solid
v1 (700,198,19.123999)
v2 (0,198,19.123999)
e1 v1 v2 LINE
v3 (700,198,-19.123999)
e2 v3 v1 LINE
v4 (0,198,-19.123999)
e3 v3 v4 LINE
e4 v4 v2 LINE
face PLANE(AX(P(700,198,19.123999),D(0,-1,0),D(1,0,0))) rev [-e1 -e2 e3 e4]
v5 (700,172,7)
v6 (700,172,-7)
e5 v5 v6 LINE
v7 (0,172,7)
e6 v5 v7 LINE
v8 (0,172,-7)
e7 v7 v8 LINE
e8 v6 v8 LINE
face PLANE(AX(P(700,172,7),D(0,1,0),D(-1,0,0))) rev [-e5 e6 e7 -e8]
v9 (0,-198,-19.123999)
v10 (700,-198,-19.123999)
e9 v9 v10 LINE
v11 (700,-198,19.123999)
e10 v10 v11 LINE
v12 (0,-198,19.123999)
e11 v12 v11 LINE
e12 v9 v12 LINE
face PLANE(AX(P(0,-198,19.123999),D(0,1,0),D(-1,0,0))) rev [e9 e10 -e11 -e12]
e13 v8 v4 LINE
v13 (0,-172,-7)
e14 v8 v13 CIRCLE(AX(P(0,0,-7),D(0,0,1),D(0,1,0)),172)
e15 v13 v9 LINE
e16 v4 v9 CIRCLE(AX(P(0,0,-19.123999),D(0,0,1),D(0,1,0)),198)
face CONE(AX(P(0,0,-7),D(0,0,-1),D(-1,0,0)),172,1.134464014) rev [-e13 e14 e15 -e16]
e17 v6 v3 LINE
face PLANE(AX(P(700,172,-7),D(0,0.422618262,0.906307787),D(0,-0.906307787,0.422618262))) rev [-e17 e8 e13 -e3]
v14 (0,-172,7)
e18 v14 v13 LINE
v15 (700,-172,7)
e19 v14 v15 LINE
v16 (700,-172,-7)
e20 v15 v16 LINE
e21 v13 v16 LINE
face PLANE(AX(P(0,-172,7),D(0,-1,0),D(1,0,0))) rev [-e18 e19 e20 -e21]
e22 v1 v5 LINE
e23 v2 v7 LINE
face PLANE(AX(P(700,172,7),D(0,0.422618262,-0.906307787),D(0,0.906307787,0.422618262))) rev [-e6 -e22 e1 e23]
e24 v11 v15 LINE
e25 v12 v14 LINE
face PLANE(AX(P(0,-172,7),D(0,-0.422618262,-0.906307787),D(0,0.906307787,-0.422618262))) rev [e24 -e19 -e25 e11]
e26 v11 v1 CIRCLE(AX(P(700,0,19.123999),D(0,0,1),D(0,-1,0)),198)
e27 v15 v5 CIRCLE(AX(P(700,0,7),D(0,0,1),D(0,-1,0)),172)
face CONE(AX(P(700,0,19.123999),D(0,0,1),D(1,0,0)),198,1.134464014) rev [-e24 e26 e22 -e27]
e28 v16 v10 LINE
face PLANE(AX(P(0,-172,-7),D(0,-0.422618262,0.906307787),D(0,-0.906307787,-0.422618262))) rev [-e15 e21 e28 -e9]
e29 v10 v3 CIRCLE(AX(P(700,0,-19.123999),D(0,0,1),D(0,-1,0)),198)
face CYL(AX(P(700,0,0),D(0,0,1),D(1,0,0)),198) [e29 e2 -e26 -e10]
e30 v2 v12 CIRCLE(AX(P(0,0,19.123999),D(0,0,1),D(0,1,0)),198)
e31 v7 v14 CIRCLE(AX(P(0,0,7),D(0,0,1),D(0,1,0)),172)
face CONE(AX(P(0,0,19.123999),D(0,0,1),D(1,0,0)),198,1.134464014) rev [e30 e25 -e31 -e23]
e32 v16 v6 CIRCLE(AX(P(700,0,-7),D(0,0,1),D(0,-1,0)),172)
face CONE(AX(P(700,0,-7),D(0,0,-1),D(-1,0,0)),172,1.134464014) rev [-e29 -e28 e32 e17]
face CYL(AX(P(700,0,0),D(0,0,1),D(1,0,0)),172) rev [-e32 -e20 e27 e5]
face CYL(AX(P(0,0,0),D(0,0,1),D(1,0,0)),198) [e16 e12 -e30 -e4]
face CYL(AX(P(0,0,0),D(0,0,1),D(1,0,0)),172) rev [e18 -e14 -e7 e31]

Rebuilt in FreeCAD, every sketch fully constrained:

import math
import FreeCAD as App
import Part
import Sketcher
Q = App.Units.Quantity


def add_polygon(sketch, points):
    """Adds a closed chain of lines whose ends are joined by coincident constraints."""
    first, n = sketch.GeometryCount, len(points)
    for a, b in zip(points, points[1:] + points[:1]):
        sketch.addGeometry(Part.LineSegment(App.Vector(*a, 0), App.Vector(*b, 0)), False)
    for i in range(n):
        sketch.addConstraint(Sketcher.Constraint("Coincident", first + i, 2, first + (i + 1) % n, 1))

doc = App.newDocument("Part")
params = doc.addObject("Spreadsheet::Sheet", "Params")
for row, (alias, value) in enumerate([
    ("sketch1_height", "14 mm"),
    ("sketch2_radius", "172 mm"),
    ("sketch2_width", "700 mm"),
], start=1):
    params.set(f"A{row}", alias)
    params.set(f"B{row}", "=" + value)
    params.setAlias(f"B{row}", alias)

body = doc.addObject("PartDesign::Body", "Body")

# Sketch on YZ plane
sketch1 = body.newObject("Sketcher::SketchObject", "Sketch")
sketch1.AttachmentSupport = (doc.getObject("YZ_Plane"), [""])
sketch1.MapMode = "FlatFace"
add_polygon(sketch1, [(172, 7), (172, -7), (198, -19.123999), (198, 19.123999)])  # lines 0-3
sketch1.addConstraint([
    Sketcher.Constraint("Vertical", 0),
    Sketcher.Constraint("Vertical", 2),
    Sketcher.Constraint("Equal", 1, 3),
    Sketcher.Constraint("DistanceY", 0, 2, 0, 1, 14.0),
    Sketcher.Constraint("Angle", 1, Q("-25 deg")),
    Sketcher.Constraint("DistanceX", -1, 1, 0, 2, 172.0),
    Sketcher.Constraint("DistanceY", 0, 2, -1, 1, 7.0),
    Sketcher.Constraint("DistanceX", -1, 1, 1, 2, 198.0),
])
sketch1.setExpression("Constraints[7]", "Params.sketch1_height")

# Sketch on XY plane
sketch2 = body.newObject("Sketcher::SketchObject", "Sketch001")
sketch2.AttachmentSupport = (doc.getObject("XY_Plane"), [""])
sketch2.MapMode = "FlatFace"
sketch2.addGeometry([
    Part.LineSegment(App.Vector(0, 172, 0), App.Vector(700, 172, 0)),
    Part.ArcOfCircle(Part.Circle(App.Vector(700, 0, 0), App.Vector(0, 0, 1), 172), math.radians(-90), math.radians(90)),
    Part.LineSegment(App.Vector(700, -172, 0), App.Vector(0, -172, 0)),
    Part.ArcOfCircle(Part.Circle(App.Vector(0, 0, 0), App.Vector(0, 0, 1), 172), math.radians(90), math.radians(270)),
], False)
sketch2.addConstraint([
    Sketcher.Constraint("Tangent", 0, 2, 1, 2),
    Sketcher.Constraint("Tangent", 1, 1, 2, 1),
    Sketcher.Constraint("Tangent", 2, 2, 3, 2),
    Sketcher.Constraint("Tangent", 3, 1, 0, 1),
    Sketcher.Constraint("Horizontal", 0),
    Sketcher.Constraint("Horizontal", 2),
    Sketcher.Constraint("Coincident", 3, 3, -1, 1),
    Sketcher.Constraint("Radius", 1, 172.0),
    Sketcher.Constraint("DistanceX", 0, 1, 0, 2, 700.0),
])
sketch2.setExpression("Constraints[7]", "Params.sketch2_radius")
sketch2.setExpression("Constraints[8]", "Params.sketch2_width")
doc.recompute()

additivepipe = body.newObject("PartDesign::AdditivePipe", "AdditivePipe")
additivepipe.Profile = sketch1
additivepipe.Spine = (sketch2, ["Edge1", "Edge2", "Edge3", "Edge4"])

doc.recompute()
